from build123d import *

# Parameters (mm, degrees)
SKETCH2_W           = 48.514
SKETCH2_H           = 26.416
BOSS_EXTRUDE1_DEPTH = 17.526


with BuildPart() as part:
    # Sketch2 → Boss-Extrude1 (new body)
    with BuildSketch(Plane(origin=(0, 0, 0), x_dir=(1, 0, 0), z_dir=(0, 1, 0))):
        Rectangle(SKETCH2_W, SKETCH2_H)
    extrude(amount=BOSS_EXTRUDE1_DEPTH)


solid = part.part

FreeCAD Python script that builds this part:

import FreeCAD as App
import Part
import Sketcher
Q = App.Units.Quantity

doc = App.newDocument("Part")
body = doc.addObject("PartDesign::Body", "Body")

# Sketch on XZ plane
sketch1 = body.newObject("Sketcher::SketchObject", "Sketch")
sketch1.AttachmentSupport = (doc.getObject("XZ_Plane"), [""])
sketch1.MapMode = "FlatFace"
sketch1.addGeometry([
    Part.LineSegment(App.Vector(-24.257, -13.208, 0), App.Vector(-24.257, 13.208, 0)),
    Part.LineSegment(App.Vector(-24.257, 13.208, 0), App.Vector(24.257, 13.208, 0)),
    Part.LineSegment(App.Vector(24.257, 13.208, 0), App.Vector(24.257, -13.208, 0)),
    Part.LineSegment(App.Vector(24.257, -13.208, 0), App.Vector(-24.257, -13.208, 0)),
], False)
sketch1.addConstraint([
    Sketcher.Constraint("Coincident", 0, 2, 1, 1),
    Sketcher.Constraint("Coincident", 1, 2, 2, 1),
    Sketcher.Constraint("Coincident", 2, 2, 3, 1),
    Sketcher.Constraint("Coincident", 3, 2, 0, 1),
    Sketcher.Constraint("Vertical", 0),
    Sketcher.Constraint("Horizontal", 1),
    Sketcher.Constraint("Vertical", 2),
    Sketcher.Constraint("Horizontal", 3),
    Sketcher.Constraint("Symmetric", 0, 2, 2, 2, -1, 1),
    Sketcher.Constraint("DistanceX", 1, 1, 1, 2, Q("1.91 in")),
    Sketcher.Constraint("DistanceY", 0, 1, 0, 2, Q("1.04 in")),
])
pad1 = body.newObject("PartDesign::Pad", "Pad")
pad1.Profile = sketch1
pad1.Length = Q("0.69 in")
pad1.Reversed = True

doc.recompute()
